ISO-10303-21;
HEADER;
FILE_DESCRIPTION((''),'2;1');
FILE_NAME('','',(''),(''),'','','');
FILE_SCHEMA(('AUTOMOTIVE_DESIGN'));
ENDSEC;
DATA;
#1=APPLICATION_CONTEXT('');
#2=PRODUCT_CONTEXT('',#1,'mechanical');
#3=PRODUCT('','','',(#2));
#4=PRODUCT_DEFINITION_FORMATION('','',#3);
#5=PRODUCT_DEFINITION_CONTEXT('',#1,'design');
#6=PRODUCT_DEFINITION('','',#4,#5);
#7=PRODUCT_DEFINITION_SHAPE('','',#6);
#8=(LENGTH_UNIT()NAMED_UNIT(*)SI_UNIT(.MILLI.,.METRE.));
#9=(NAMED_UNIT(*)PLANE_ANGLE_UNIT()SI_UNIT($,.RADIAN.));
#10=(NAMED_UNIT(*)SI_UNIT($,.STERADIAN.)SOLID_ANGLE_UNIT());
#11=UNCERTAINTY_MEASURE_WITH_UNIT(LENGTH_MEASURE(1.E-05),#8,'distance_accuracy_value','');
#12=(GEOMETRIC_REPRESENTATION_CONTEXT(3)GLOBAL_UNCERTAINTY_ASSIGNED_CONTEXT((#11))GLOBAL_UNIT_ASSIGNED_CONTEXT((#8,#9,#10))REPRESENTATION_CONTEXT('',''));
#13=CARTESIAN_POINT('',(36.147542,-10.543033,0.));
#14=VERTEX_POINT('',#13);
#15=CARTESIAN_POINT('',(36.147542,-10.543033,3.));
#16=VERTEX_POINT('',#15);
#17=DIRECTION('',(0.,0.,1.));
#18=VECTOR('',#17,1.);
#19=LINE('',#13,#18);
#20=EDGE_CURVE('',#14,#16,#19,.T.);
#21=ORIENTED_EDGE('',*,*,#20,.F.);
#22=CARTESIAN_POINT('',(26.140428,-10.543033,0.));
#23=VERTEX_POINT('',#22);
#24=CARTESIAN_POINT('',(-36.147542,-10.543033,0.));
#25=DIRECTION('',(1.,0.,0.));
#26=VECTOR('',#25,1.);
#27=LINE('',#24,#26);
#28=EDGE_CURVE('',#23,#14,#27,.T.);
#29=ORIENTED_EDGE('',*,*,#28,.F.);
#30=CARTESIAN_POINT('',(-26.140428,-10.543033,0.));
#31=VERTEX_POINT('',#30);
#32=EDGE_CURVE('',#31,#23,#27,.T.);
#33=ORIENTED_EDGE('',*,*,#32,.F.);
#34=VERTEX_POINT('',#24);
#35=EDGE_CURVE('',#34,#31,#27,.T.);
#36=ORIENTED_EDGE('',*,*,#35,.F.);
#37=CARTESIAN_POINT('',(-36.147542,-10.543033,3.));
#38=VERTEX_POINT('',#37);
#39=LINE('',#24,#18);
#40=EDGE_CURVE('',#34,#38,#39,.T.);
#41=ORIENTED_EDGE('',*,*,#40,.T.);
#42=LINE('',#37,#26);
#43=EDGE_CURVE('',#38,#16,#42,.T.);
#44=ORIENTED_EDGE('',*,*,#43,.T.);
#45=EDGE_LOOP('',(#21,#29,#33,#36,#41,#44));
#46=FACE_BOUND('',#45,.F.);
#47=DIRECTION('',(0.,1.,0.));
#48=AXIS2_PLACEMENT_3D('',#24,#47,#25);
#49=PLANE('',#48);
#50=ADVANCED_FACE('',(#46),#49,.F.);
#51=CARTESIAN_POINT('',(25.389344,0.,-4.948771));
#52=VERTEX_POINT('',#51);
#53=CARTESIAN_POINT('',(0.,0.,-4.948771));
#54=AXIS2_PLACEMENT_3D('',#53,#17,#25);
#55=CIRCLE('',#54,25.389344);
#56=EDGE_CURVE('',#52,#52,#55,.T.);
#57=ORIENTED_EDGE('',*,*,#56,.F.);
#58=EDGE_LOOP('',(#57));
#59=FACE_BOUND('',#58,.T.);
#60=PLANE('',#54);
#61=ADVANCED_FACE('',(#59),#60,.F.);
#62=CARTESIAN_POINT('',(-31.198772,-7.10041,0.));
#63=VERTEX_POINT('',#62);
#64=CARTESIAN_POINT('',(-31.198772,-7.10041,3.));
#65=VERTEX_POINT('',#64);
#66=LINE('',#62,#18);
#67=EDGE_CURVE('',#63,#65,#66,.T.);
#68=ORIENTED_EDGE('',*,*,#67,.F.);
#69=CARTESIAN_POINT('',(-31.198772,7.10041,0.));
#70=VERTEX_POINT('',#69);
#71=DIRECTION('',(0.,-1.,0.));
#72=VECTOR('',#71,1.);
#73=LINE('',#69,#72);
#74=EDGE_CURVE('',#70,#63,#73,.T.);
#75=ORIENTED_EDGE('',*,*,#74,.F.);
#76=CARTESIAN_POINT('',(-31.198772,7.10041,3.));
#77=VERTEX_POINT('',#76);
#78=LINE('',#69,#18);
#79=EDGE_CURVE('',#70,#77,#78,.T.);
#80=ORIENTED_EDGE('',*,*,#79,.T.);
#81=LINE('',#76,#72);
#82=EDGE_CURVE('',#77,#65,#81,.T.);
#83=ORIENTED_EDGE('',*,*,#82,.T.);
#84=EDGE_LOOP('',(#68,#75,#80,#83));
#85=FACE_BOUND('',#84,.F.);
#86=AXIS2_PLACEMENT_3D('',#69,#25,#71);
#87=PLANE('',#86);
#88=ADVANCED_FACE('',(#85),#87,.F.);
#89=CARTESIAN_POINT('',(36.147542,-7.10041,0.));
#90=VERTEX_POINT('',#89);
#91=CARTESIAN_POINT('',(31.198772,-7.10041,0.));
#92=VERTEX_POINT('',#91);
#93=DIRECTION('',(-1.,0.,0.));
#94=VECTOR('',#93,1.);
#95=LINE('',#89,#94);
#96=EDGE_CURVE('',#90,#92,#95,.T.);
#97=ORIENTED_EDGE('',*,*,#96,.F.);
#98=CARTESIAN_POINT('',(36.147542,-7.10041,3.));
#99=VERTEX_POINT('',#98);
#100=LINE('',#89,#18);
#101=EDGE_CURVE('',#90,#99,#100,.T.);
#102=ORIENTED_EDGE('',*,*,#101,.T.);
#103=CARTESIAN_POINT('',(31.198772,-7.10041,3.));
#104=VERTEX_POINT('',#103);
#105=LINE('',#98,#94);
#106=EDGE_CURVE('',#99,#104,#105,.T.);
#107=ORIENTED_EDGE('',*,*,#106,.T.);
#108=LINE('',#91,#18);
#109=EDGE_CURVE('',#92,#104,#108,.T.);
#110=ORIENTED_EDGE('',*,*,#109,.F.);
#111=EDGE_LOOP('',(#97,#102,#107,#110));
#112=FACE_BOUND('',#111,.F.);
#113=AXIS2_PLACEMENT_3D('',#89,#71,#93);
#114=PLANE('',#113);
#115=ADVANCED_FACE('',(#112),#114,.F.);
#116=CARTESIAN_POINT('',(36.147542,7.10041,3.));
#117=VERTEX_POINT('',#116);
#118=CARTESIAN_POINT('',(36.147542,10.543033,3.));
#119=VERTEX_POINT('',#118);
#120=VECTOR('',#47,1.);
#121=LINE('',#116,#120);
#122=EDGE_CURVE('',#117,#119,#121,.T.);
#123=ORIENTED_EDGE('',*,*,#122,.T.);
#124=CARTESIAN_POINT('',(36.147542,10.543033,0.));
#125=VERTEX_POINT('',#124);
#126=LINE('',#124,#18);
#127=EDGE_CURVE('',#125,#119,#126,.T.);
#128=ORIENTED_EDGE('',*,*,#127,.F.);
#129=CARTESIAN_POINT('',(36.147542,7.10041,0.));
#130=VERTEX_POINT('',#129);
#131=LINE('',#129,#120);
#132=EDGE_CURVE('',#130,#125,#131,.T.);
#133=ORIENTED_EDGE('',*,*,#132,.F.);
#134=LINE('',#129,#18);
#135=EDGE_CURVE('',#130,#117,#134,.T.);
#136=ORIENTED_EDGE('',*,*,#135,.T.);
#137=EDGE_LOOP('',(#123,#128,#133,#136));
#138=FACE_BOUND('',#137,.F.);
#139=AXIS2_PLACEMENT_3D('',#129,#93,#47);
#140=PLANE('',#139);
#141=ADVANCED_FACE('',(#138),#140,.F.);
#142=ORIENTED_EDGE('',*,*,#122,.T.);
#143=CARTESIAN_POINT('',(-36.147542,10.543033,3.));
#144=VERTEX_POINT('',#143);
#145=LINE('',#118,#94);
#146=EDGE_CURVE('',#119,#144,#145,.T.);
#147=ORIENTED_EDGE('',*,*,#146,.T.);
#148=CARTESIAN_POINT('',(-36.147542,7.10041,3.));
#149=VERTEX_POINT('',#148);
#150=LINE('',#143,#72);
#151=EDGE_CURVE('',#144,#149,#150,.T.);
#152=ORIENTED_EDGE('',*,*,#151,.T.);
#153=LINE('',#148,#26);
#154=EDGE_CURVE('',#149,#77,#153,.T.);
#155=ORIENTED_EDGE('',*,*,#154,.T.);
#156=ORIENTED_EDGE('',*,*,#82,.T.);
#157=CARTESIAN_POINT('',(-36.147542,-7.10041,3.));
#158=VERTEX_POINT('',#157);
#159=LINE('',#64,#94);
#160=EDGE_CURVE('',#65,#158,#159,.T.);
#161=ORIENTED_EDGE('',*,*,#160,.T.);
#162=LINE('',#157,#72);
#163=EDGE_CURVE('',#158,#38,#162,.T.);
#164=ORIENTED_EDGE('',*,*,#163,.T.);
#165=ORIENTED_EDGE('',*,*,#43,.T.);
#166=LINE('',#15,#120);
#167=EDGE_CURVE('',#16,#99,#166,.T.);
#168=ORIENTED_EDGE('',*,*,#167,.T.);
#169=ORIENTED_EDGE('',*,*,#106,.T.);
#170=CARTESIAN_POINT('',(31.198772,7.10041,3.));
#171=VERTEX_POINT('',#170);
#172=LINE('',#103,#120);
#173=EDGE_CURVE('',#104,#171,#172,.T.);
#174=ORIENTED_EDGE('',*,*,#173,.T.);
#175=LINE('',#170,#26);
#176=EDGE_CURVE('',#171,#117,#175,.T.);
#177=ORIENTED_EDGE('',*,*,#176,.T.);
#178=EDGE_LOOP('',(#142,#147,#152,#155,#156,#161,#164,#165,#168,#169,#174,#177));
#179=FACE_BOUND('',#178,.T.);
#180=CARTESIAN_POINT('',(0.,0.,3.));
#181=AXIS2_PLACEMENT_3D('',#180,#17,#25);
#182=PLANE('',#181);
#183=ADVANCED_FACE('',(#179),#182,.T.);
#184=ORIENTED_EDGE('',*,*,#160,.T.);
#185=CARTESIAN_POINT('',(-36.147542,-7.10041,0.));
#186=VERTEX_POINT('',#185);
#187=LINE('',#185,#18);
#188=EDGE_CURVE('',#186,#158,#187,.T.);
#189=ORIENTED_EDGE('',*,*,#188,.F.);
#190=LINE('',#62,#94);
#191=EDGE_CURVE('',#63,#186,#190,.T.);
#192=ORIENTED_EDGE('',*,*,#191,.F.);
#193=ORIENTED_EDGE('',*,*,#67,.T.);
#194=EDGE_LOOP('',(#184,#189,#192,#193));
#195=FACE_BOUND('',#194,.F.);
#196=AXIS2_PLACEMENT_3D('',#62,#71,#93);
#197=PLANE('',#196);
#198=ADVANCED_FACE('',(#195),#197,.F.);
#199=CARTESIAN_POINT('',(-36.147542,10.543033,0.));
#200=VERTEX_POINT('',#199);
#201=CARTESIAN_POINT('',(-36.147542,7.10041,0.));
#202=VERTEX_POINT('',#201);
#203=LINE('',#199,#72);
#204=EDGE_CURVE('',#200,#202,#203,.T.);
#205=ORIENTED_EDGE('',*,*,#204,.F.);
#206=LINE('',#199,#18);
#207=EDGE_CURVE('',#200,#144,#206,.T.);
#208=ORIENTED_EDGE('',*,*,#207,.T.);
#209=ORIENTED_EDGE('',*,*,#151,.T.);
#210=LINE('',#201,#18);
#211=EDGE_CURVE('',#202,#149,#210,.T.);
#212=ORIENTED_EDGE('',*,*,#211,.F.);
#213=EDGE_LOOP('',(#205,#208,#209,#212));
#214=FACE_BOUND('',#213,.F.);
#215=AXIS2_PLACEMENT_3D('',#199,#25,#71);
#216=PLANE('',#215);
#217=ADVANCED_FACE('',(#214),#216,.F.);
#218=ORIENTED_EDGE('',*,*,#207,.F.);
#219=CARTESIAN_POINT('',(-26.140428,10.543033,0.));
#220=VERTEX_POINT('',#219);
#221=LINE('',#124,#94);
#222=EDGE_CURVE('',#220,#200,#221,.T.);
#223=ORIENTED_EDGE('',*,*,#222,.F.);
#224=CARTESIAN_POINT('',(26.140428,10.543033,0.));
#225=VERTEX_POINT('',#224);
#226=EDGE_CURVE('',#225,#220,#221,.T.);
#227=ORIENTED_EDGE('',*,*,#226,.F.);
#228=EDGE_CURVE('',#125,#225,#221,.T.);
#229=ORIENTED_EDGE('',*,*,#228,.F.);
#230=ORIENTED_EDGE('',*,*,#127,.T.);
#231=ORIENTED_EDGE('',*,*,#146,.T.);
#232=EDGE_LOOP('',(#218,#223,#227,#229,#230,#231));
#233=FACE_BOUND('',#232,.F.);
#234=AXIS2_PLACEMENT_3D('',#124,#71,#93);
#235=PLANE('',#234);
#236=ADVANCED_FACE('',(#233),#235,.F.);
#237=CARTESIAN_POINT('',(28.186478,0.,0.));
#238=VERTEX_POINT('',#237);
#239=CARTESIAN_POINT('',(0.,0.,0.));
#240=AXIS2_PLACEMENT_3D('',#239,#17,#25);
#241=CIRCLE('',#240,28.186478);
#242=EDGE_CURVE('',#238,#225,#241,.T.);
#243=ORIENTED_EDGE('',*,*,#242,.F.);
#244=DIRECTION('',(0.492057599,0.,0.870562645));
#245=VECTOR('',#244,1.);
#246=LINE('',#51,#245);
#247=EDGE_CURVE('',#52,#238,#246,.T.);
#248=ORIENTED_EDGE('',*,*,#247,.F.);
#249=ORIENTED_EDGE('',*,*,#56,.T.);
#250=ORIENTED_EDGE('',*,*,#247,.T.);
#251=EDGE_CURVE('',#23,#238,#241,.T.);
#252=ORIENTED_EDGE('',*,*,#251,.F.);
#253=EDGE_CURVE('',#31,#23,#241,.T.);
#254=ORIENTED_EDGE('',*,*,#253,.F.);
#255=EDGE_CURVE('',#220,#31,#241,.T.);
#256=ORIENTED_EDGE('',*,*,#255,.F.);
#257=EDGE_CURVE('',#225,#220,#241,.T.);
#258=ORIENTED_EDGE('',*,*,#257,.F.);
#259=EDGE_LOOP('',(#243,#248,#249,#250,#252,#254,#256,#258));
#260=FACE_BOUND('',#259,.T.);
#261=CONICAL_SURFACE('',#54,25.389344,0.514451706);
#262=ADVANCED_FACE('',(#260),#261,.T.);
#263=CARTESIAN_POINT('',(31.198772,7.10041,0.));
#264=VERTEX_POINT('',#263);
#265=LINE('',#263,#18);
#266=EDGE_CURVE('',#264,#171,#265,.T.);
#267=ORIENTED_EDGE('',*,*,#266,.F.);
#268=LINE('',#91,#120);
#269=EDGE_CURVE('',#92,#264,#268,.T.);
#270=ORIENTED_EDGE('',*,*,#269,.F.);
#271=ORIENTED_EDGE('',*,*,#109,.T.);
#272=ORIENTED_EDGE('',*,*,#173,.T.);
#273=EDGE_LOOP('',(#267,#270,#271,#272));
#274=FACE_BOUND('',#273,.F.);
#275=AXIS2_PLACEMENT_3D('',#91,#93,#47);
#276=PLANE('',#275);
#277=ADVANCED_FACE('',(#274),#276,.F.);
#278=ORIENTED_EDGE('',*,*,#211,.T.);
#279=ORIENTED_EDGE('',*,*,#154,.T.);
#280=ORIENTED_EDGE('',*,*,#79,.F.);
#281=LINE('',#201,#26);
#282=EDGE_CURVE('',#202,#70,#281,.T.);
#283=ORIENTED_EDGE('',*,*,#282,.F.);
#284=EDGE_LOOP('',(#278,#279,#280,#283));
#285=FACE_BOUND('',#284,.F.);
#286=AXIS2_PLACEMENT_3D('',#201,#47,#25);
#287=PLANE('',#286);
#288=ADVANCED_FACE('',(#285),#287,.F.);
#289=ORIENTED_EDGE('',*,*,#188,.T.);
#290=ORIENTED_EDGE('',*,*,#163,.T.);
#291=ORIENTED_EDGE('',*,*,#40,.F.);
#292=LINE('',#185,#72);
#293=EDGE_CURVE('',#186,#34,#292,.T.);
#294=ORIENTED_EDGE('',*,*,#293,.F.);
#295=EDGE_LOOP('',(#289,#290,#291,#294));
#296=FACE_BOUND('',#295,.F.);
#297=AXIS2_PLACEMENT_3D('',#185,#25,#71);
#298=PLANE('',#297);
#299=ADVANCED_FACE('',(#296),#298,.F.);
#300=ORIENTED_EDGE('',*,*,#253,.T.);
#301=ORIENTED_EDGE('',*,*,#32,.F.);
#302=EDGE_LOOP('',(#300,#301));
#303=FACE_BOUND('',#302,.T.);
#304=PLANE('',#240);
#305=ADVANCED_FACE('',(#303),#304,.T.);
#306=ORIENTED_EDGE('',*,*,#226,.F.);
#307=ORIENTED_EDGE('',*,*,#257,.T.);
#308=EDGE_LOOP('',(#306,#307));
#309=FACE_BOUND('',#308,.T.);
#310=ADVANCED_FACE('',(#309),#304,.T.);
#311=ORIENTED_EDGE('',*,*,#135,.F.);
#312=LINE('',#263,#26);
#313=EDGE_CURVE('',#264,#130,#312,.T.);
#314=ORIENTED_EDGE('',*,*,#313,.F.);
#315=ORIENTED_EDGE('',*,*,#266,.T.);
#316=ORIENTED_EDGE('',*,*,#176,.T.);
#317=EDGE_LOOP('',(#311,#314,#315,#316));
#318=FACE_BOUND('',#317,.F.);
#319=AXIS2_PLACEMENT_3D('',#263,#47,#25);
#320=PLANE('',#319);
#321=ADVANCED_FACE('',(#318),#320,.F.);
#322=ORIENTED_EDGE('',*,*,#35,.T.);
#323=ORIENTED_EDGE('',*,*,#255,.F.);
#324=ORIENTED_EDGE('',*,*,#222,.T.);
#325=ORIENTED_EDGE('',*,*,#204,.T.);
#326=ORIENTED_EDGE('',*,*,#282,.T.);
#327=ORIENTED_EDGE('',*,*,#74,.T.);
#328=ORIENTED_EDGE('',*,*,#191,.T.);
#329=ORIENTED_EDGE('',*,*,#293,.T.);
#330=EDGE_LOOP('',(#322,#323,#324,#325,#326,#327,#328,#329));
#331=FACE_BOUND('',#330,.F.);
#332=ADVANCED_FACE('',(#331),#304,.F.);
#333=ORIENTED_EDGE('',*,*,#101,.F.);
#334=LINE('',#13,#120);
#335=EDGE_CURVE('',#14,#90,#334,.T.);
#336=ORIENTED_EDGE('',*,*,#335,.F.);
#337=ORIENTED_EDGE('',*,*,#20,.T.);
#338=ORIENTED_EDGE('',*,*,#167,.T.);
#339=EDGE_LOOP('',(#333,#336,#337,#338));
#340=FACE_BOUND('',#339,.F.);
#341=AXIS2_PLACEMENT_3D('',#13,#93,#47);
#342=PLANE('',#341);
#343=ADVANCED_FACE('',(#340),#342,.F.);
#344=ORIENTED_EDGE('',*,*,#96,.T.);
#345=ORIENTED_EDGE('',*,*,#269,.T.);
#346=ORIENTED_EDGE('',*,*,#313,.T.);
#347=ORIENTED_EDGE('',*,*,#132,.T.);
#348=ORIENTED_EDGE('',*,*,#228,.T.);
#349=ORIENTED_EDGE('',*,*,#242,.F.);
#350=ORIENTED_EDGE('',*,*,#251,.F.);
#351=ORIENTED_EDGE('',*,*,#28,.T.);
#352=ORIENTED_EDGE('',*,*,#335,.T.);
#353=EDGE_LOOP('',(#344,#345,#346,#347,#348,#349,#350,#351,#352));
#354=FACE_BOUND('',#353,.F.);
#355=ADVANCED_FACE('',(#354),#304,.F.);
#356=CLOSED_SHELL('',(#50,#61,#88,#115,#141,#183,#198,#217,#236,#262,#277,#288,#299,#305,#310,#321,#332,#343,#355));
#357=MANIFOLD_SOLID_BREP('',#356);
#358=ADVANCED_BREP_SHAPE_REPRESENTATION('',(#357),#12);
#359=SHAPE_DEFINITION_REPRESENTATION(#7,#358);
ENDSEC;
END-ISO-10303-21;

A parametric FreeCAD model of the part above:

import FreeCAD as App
import Part
import Sketcher

V = App.Vector
Q = App.Units.Quantity


def add_polygon(sketch, points):
    """Adds a closed chain of lines whose ends are joined by coincident constraints."""
    first, n = sketch.GeometryCount, len(points)
    for a, b in zip(points, points[1:] + points[:1]):
        sketch.addGeometry(Part.LineSegment(App.Vector(*a, 0), App.Vector(*b, 0)), False)
    for i in range(n):
        sketch.addConstraint(Sketcher.Constraint("Coincident", first + i, 2, first + (i + 1) % n, 1))

doc = App.newDocument("Part")
body = doc.addObject("PartDesign::Body", "Body")

# Sketch on XZ plane
sketch1 = doc.addObject("Sketcher::SketchObject", "Sketch")
body.addObject(sketch1)
sketch1.AttachmentSupport = (doc.XZ_Plane, [""])
sketch1.MapMode = "FlatFace"
add_polygon(sketch1, [(28.2, 0), (0, 0), (0, -4.9), (25.4, -4.9)])  # lines 0-3
sketch1.addConstraint([
    Sketcher.Constraint("Horizontal", 0),
    Sketcher.Constraint("Vertical", 1),
    Sketcher.Constraint("Horizontal", 2),
    Sketcher.Constraint("Coincident", 0, 2, -1, 1),
    Sketcher.Constraint("DistanceX", 0, 2, 0, 1, Q("28.186478 mm")),
    Sketcher.Constraint("DistanceY", 1, 2, 1, 1, Q("4.948771 mm")),
    Sketcher.Constraint("DistanceX", 2, 1, 2, 2, Q("25.389344 mm")),
])
revolution = doc.addObject("PartDesign::Revolution", "Revolution")
body.addObject(revolution)
revolution.Profile = sketch1
revolution.ReferenceAxis = (sketch1, ["V_Axis"])
revolution.Angle = 360

# Sketch on XY plane
sketch2 = doc.addObject("Sketcher::SketchObject", "Sketch001")
body.addObject(sketch2)
sketch2.AttachmentSupport = (doc.XY_Plane, [""])
sketch2.MapMode = "FlatFace"
add_polygon(sketch2, [(-36.1, -7.1), (-36.1, -10.5), (36.1, -10.5), (36.1, -7.1), (31.2, -7.1), (31.2, 7.1), (36.1, 7.1), (36.1, 10.5), (-36.1, 10.5), (-36.1, 7.1), (-31.2, 7.1), (-31.2, -7.1)])  # lines 0-11
sketch2.addConstraint([
    Sketcher.Constraint("Vertical", 0),
    Sketcher.Constraint("Horizontal", 1),
    Sketcher.Constraint("Vertical", 2),
    Sketcher.Constraint("Horizontal", 3),
    Sketcher.Constraint("Vertical", 4),
    Sketcher.Constraint("Horizontal", 5),
    Sketcher.Constraint("Vertical", 6),
    Sketcher.Constraint("Horizontal", 7),
    Sketcher.Constraint("Vertical", 8),
    Sketcher.Constraint("Horizontal", 9),
    Sketcher.Constraint("Vertical", 10),
    Sketcher.Constraint("Horizontal", 11),
    Sketcher.Constraint("Symmetric", 0, 2, 6, 2, -1, 1),
    Sketcher.Constraint("Symmetric", 2, 2, 8, 2, -1, 1),
    Sketcher.Constraint("Symmetric", 4, 2, 10, 2, -1, 1),
    Sketcher.Constraint("Symmetric", 5, 2, 8, 2, -2),
    Sketcher.Constraint("DistanceX", 3, 2, 3, 1, Q("4.94877 mm")),
    Sketcher.Constraint("DistanceY", 4, 1, 4, 2, Q("14.20082 mm")),
    Sketcher.Constraint("DistanceX", 1, 1, 1, 2, Q("72.295084 mm")),
    Sketcher.Constraint("DistanceY", 0, 2, 0, 1, Q("3.442623 mm")),
])
pad1 = doc.addObject("PartDesign::Pad", "Pad")
body.addObject(pad1)
pad1.Profile = sketch2
pad1.Length = 3

doc.recompute()
